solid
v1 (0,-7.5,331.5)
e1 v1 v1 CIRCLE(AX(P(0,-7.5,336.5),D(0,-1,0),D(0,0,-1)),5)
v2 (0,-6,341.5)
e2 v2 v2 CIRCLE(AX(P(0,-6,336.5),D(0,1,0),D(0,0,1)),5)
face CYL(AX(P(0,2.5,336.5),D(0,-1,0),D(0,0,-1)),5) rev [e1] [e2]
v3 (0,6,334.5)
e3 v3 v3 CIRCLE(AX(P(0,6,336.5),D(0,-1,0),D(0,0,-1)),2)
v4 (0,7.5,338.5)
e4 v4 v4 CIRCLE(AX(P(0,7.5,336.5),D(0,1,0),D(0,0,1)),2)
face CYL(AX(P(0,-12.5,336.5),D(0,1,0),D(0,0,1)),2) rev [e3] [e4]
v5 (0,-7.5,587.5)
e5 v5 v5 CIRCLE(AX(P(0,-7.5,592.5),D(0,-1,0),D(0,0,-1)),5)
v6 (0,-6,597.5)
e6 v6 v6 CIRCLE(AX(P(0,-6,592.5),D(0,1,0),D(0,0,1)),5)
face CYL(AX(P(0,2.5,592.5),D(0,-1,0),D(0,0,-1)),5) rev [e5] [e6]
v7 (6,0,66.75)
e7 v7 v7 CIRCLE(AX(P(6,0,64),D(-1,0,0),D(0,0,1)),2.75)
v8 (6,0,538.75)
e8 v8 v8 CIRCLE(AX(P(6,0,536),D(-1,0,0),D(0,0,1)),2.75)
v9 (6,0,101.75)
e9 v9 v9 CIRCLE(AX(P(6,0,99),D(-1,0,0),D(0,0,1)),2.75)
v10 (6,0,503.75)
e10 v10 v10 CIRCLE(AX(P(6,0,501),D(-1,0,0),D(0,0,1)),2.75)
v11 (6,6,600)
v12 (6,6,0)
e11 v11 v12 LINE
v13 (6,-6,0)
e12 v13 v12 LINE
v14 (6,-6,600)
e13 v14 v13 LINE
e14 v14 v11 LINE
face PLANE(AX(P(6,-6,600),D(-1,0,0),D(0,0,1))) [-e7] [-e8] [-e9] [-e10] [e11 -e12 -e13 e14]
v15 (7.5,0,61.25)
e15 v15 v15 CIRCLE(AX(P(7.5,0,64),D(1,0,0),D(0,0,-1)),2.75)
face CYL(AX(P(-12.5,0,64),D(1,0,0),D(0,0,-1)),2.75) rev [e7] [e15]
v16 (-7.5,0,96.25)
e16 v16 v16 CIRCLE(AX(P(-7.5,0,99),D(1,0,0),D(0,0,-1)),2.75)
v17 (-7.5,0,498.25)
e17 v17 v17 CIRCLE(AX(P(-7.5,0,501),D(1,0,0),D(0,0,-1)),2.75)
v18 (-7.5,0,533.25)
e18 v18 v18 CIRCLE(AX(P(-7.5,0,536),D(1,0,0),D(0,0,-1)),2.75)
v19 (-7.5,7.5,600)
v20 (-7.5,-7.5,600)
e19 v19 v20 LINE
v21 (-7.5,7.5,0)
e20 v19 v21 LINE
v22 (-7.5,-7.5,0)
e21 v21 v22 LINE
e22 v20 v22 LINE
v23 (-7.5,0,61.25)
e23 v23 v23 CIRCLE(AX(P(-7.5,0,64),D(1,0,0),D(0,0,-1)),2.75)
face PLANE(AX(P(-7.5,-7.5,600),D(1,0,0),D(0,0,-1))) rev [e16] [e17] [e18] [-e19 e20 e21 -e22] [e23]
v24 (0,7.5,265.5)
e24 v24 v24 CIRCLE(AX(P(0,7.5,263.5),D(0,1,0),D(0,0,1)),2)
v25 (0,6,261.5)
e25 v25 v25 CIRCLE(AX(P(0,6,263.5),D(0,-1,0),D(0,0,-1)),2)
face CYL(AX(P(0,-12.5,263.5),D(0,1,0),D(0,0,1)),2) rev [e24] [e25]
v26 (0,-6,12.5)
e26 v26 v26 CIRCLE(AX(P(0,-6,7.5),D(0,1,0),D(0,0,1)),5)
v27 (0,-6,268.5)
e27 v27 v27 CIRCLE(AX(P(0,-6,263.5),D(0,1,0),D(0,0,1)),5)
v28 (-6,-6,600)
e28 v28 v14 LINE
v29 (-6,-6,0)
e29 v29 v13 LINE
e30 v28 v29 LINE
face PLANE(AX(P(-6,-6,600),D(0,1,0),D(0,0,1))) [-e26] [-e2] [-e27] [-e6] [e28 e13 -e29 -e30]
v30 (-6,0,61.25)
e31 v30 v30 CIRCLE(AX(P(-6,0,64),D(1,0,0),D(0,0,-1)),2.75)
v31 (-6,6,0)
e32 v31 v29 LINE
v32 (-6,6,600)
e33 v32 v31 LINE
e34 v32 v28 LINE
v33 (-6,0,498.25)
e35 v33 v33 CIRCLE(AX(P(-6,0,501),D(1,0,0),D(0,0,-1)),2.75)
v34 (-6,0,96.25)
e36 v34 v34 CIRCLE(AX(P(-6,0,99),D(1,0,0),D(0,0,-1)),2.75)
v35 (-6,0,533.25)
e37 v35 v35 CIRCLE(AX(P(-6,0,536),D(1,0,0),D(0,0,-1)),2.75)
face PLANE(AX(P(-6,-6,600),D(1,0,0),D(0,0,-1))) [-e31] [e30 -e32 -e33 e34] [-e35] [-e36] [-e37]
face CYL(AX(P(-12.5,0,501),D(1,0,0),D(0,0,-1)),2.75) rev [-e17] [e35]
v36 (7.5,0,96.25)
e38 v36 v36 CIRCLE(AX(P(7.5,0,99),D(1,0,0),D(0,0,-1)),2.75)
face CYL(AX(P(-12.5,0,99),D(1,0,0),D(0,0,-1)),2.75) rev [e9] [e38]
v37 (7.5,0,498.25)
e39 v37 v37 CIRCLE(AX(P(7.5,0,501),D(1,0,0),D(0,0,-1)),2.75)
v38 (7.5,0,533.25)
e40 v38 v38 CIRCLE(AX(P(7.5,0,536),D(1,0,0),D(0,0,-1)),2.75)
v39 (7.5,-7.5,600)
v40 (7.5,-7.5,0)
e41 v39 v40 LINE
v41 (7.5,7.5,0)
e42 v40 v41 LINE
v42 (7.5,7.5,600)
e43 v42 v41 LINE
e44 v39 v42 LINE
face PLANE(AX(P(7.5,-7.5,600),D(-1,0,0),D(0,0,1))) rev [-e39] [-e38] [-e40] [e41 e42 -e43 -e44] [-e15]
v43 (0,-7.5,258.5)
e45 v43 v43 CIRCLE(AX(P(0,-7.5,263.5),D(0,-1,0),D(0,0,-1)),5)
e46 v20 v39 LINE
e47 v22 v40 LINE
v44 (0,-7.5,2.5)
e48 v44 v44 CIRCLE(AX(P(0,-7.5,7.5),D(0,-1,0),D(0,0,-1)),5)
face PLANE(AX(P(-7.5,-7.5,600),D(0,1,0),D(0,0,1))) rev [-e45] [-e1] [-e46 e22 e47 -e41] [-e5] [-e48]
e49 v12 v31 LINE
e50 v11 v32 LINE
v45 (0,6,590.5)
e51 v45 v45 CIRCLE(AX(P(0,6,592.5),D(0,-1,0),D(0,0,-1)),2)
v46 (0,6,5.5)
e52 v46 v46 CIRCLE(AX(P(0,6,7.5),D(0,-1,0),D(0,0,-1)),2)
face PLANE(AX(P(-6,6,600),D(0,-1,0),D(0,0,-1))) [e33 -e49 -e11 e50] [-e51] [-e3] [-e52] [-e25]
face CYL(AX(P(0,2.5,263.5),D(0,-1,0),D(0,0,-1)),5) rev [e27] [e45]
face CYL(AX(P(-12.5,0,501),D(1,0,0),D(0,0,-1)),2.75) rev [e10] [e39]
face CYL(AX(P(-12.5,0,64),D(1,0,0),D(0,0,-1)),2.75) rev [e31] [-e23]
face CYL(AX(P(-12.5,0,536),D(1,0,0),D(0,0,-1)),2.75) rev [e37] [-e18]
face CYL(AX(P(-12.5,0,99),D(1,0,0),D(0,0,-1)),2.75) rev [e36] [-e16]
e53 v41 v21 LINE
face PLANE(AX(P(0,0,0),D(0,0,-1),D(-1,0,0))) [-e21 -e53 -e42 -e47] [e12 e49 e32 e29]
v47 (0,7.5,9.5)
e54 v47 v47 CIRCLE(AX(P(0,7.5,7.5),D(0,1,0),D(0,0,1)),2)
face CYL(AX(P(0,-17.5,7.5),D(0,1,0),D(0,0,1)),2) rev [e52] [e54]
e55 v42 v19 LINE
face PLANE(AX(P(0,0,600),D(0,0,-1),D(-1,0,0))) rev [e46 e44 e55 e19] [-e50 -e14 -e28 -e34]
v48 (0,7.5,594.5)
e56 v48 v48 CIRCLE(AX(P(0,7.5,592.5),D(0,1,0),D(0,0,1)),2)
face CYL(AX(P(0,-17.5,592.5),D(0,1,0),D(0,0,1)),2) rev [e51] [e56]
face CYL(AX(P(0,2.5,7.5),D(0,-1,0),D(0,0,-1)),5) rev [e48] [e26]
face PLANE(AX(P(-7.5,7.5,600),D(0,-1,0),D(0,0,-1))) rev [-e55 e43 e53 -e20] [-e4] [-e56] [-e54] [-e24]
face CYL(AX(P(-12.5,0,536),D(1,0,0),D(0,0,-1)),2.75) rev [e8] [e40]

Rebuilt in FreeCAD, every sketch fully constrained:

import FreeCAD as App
import Part
import Sketcher

V = App.Vector

doc = App.newDocument("Part")
body = doc.addObject("PartDesign::Body", "Body")

# Sketch on XY plane
sketch1 = body.newObject("Sketcher::SketchObject", "Sketch")
sketch1.AttachmentSupport = (doc.getObject("XY_Plane"), [""])
sketch1.MapMode = "FlatFace"
sketch1.addGeometry(Part.LineSegment(V(-8, 8, 0), V(-8, -8, 0)), False)
sketch1.addGeometry(Part.LineSegment(V(-8, -8, 0), V(8, -8, 0)), False)
sketch1.addGeometry(Part.LineSegment(V(8, -8, 0), V(8, 8, 0)), False)
sketch1.addGeometry(Part.LineSegment(V(8, 8, 0), V(-8, 8, 0)), False)
sketch1.addGeometry(Part.LineSegment(V(6, -6, 0), V(-6, -6, 0)), False)
sketch1.addGeometry(Part.LineSegment(V(-6, -6, 0), V(-6, 6, 0)), False)
sketch1.addGeometry(Part.LineSegment(V(-6, 6, 0), V(6, 6, 0)), False)
sketch1.addGeometry(Part.LineSegment(V(6, 6, 0), V(6, -6, 0)), False)
sketch1.addConstraint(Sketcher.Constraint("Coincident", 0, 2, 1, 1))
sketch1.addConstraint(Sketcher.Constraint("Coincident", 1, 2, 2, 1))
sketch1.addConstraint(Sketcher.Constraint("Coincident", 2, 2, 3, 1))
sketch1.addConstraint(Sketcher.Constraint("Coincident", 3, 2, 0, 1))
sketch1.addConstraint(Sketcher.Constraint("Coincident", 4, 2, 5, 1))
sketch1.addConstraint(Sketcher.Constraint("Coincident", 5, 2, 6, 1))
sketch1.addConstraint(Sketcher.Constraint("Coincident", 6, 2, 7, 1))
sketch1.addConstraint(Sketcher.Constraint("Coincident", 7, 2, 4, 1))
sketch1.addConstraint(Sketcher.Constraint("Vertical", 0))
sketch1.addConstraint(Sketcher.Constraint("Horizontal", 1))
sketch1.addConstraint(Sketcher.Constraint("Vertical", 2))
sketch1.addConstraint(Sketcher.Constraint("Horizontal", 3))
sketch1.addConstraint(Sketcher.Constraint("Horizontal", 4))
sketch1.addConstraint(Sketcher.Constraint("Vertical", 5))
sketch1.addConstraint(Sketcher.Constraint("Horizontal", 6))
sketch1.addConstraint(Sketcher.Constraint("Vertical", 7))
sketch1.addConstraint(Sketcher.Constraint("Symmetric", 0, 2, 2, 2, -1, 1))
sketch1.addConstraint(Sketcher.Constraint("Symmetric", 4, 2, 6, 2, -1, 1))
sketch1.addConstraint(Sketcher.Constraint("Equal", 3, 0))
sketch1.addConstraint(Sketcher.Constraint("Equal", 6, 5))
sketch1.addConstraint(Sketcher.Constraint("DistanceX", 1, 1, 1, 2, 15.0))
sketch1.addConstraint(Sketcher.Constraint("DistanceX", 4, 2, 4, 1, 12.0))
pad1 = body.newObject("PartDesign::Pad", "Pad")
pad1.Profile = sketch1
pad1.Length = 600

# Sketch on XZ plane
sketch2 = body.newObject("Sketcher::SketchObject", "Sketch001")
sketch2.AttachmentSupport = (doc.getObject("XZ_Plane"), [""])
sketch2.MapMode = "FlatFace"
sketch2.AttachmentOffset = App.Placement(V(0, 0, -7.5), App.Rotation())
sketch2.addGeometry(Part.Circle(V(0, 7.5, 0), V(0, 0, 1), 2), False)
sketch2.addGeometry(Part.Circle(V(0, 592.5, 0), V(0, 0, 1), 2), False)
sketch2.addConstraint(Sketcher.Constraint("Equal", 0, 1))
sketch2.addConstraint(Sketcher.Constraint("PointOnObject", 0, 3, -2))
sketch2.addConstraint(Sketcher.Constraint("PointOnObject", 1, 3, -2))
sketch2.addConstraint(Sketcher.Constraint("Diameter", 0, 4.0))
sketch2.addConstraint(Sketcher.Constraint("DistanceY", 0, 3, 1, 3, 585.0))
sketch2.addConstraint(Sketcher.Constraint("DistanceY", -1, 1, 0, 3, 7.5))
pocket1 = body.newObject("PartDesign::Pocket", "Pocket")
pocket1.Profile = sketch2
pocket1.Length = 25
pocket1.Reversed = True

# Sketch on YZ plane
sketch3 = body.newObject("Sketcher::SketchObject", "Sketch002")
sketch3.AttachmentSupport = (doc.getObject("YZ_Plane"), [""])
sketch3.MapMode = "FlatFace"
sketch3.AttachmentOffset = App.Placement(V(0, 0, 7.5), App.Rotation())
sketch3.addGeometry(Part.Circle(V(0, 536, 0), V(0, 0, 1), 2.8), False)
sketch3.addGeometry(Part.Circle(V(0, 501, 0), V(0, 0, 1), 2.8), False)
sketch3.addGeometry(Part.Circle(V(0, 99, 0), V(0, 0, 1), 2.8), False)
sketch3.addGeometry(Part.Circle(V(0, 64, 0), V(0, 0, 1), 2.8), False)
sketch3.addConstraint(Sketcher.Constraint("Equal", 0, 1))
sketch3.addConstraint(Sketcher.Constraint("Equal", 1, 2))
sketch3.addConstraint(Sketcher.Constraint("Equal", 2, 3))
sketch3.addConstraint(Sketcher.Constraint("PointOnObject", 0, 3, -2))
sketch3.addConstraint(Sketcher.Constraint("PointOnObject", 1, 3, -2))
sketch3.addConstraint(Sketcher.Constraint("PointOnObject", 2, 3, -2))
sketch3.addConstraint(Sketcher.Constraint("PointOnObject", 3, 3, -2))
sketch3.addConstraint(Sketcher.Constraint("Diameter", 0, 5.5))
sketch3.addConstraint(Sketcher.Constraint("DistanceY", -1, 1, 0, 3, 536.0))
sketch3.addConstraint(Sketcher.Constraint("DistanceY", -1, 1, 1, 3, 501.0))
sketch3.addConstraint(Sketcher.Constraint("DistanceY", -1, 1, 2, 3, 99.0))
sketch3.addConstraint(Sketcher.Constraint("DistanceY", -1, 1, 3, 3, 64.0))
pocket2 = body.newObject("PartDesign::Pocket", "Pocket001")
pocket2.Profile = sketch3
pocket2.Length = 20

# Sketch on XZ plane
sketch4 = body.newObject("Sketcher::SketchObject", "Sketch003")
sketch4.AttachmentSupport = (doc.getObject("XZ_Plane"), [""])
sketch4.MapMode = "FlatFace"
sketch4.AttachmentOffset = App.Placement(V(0, 0, -7.5), App.Rotation())
sketch4.addGeometry(Part.Circle(V(0, 336.5, 0), V(0, 0, 1), 2), False)
sketch4.addGeometry(Part.Circle(V(0, 263.5, 0), V(0, 0, 1), 2), False)
sketch4.addConstraint(Sketcher.Constraint("Equal", 0, 1))
sketch4.addConstraint(Sketcher.Constraint("PointOnObject", 0, 3, -2))
sketch4.addConstraint(Sketcher.Constraint("PointOnObject", 1, 3, -2))
sketch4.addConstraint(Sketcher.Constraint("Diameter", 0, 4.0))
sketch4.addConstraint(Sketcher.Constraint("DistanceY", 1, 3, 0, 3, 73.0))
sketch4.addConstraint(Sketcher.Constraint("DistanceY", -1, 1, 0, 3, 336.5))
pocket3 = body.newObject("PartDesign::Pocket", "Pocket002")
pocket3.Profile = sketch4
pocket3.Length = 20
pocket3.Reversed = True

# Sketch on XZ plane
sketch5 = body.newObject("Sketcher::SketchObject", "Sketch004")
sketch5.AttachmentSupport = (doc.getObject("XZ_Plane"), [""])
sketch5.MapMode = "FlatFace"
sketch5.AttachmentOffset = App.Placement(V(0, 0, 7.5), App.Rotation())
sketch5.addGeometry(Part.Circle(V(0, 592, 0), V(0, 0, 1), 5), False)
sketch5.addGeometry(Part.Circle(V(0, 336, 0), V(0, 0, 1), 5), False)
sketch5.addGeometry(Part.Circle(V(0, 264, 0), V(0, 0, 1), 5), False)
sketch5.addGeometry(Part.Circle(V(0, 8, 0), V(0, 0, 1), 5), False)
sketch5.addConstraint(Sketcher.Constraint("Equal", 0, 1))
sketch5.addConstraint(Sketcher.Constraint("Equal", 1, 2))
sketch5.addConstraint(Sketcher.Constraint("Equal", 2, 3))
sketch5.addConstraint(Sketcher.Constraint("PointOnObject", 0, 3, -2))
sketch5.addConstraint(Sketcher.Constraint("PointOnObject", 1, 3, -2))
sketch5.addConstraint(Sketcher.Constraint("PointOnObject", 2, 3, -2))
sketch5.addConstraint(Sketcher.Constraint("PointOnObject", 3, 3, -2))
sketch5.addConstraint(Sketcher.Constraint("Diameter", 0, 10.0))
sketch5.addConstraint(Sketcher.Constraint("DistanceY", 1, 3, 0, 3, 256.0))
sketch5.addConstraint(Sketcher.Constraint("DistanceY", 2, 3, 1, 3, 73.0))
sketch5.addConstraint(Sketcher.Constraint("DistanceY", 3, 3, 2, 3, 256.0))
sketch5.addConstraint(Sketcher.Constraint("DistanceY", -1, 1, 0, 3, 592.5))
pocket4 = body.newObject("PartDesign::Pocket", "Pocket003")
pocket4.Profile = sketch5
pocket4.Length = 10

doc.recompute()
